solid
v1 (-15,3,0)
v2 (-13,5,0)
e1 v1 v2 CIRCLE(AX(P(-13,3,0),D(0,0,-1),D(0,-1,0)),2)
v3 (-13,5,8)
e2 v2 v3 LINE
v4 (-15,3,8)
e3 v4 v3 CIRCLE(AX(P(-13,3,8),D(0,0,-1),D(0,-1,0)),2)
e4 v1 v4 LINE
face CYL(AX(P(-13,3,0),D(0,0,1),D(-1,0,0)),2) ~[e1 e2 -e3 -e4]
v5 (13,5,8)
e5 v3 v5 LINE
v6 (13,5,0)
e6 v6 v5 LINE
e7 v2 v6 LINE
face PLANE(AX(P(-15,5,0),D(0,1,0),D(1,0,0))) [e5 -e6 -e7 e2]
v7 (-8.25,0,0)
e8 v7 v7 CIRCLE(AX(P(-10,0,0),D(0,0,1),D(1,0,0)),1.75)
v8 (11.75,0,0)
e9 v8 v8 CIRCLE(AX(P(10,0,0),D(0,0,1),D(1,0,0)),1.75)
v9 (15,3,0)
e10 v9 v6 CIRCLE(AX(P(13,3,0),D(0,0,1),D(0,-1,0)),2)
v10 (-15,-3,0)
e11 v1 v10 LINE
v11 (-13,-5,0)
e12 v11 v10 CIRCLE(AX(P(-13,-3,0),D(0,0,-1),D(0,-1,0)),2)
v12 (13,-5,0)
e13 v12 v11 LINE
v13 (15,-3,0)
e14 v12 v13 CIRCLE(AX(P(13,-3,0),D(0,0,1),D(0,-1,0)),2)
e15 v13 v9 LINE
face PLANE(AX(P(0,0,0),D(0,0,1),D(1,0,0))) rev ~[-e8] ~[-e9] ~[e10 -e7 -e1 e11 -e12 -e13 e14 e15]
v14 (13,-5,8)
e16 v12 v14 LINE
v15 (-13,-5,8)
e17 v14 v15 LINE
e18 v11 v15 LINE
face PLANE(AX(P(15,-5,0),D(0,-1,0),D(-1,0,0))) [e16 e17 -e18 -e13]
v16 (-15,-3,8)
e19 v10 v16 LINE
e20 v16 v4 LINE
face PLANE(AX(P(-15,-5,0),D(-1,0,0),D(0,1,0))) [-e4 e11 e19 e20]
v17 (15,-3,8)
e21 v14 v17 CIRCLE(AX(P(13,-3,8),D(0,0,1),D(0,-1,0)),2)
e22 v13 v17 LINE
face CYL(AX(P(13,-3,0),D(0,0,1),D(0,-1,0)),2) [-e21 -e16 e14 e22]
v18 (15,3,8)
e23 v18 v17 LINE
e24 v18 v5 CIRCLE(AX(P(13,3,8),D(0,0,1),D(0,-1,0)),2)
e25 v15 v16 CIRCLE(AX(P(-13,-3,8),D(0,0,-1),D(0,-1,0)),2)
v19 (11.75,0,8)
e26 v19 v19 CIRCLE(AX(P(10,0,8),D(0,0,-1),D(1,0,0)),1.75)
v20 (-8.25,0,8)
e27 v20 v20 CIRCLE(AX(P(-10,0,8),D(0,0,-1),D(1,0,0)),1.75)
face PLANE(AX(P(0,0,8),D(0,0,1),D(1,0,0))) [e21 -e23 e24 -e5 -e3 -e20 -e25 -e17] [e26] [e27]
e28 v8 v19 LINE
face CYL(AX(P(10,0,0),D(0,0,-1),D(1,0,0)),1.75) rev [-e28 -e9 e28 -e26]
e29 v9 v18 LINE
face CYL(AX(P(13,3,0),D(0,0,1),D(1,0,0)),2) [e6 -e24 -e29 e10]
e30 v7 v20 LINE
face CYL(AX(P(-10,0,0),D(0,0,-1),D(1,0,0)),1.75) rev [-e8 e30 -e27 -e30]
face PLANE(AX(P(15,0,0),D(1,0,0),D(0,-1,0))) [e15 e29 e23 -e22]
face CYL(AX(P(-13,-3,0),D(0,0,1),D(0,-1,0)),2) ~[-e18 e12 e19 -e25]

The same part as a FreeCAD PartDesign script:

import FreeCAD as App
import Part
import Sketcher
Q = App.Units.Quantity


def edges_at(feature, points):
    """Names of the edges that pass closest to the given points."""
    edges = feature.Shape.Edges
    near = lambda p: min(range(len(edges)), key=lambda i: edges[i].distToShape(Part.Vertex(*p))[0])
    return sorted({f"Edge{near(p) + 1}" for p in points})

doc = App.newDocument("Part")
body = doc.addObject("PartDesign::Body", "Body")

# Sketch on XY plane
sketch1 = body.newObject("Sketcher::SketchObject", "Sketch")
sketch1.AttachmentSupport = (doc.getObject("XY_Plane"), [""])
sketch1.MapMode = "FlatFace"
sketch1.addGeometry([
    Part.LineSegment(App.Vector(-15, -5, 0), App.Vector(15, -5, 0)),  # 0
    Part.LineSegment(App.Vector(15, -5, 0), App.Vector(15, 5, 0)),  # 1
    Part.LineSegment(App.Vector(15, 5, 0), App.Vector(-15, 5, 0)),  # 2
    Part.LineSegment(App.Vector(-15, 5, 0), App.Vector(-15, -5, 0)),  # 3
    Part.Circle(App.Vector(-10, 0, 0), App.Vector(0, 0, 1), 1.75),  # 4
    Part.Circle(App.Vector(10, 0, 0), App.Vector(0, 0, 1), 1.75),  # 5
], False)
sketch1.addConstraint([
    Sketcher.Constraint("Coincident", 0, 2, 1, 1),
    Sketcher.Constraint("Coincident", 1, 2, 2, 1),
    Sketcher.Constraint("Coincident", 2, 2, 3, 1),
    Sketcher.Constraint("Coincident", 3, 2, 0, 1),
    Sketcher.Constraint("Horizontal", 0),
    Sketcher.Constraint("Vertical", 1),
    Sketcher.Constraint("Horizontal", 2),
    Sketcher.Constraint("Vertical", 3),
    Sketcher.Constraint("Equal", 4, 5),
    Sketcher.Constraint("Symmetric", 4, 3, 5, 3, -1, 1),
    Sketcher.Constraint("Symmetric", 0, 2, 2, 2, -1, 1),
    Sketcher.Constraint("PointOnObject", 4, 3, -1),
    Sketcher.Constraint("Diameter", 4, Q("3.5 mm")),
    Sketcher.Constraint("DistanceX", 0, 1, 0, 2, Q("30 mm")),
    Sketcher.Constraint("DistanceY", 1, 1, 1, 2, Q("10 mm")),
    Sketcher.Constraint("DistanceX", 4, 3, -1, 1, Q("10 mm")),
])
pad1 = body.newObject("PartDesign::Pad", "Pad")
pad1.Profile = sketch1
pad1.Length = 8
doc.recompute()

fillet = body.newObject("PartDesign::Fillet", "Fillet")
fillet.Base = (pad1, edges_at(pad1, [
    (-15, 5, 4),
    (15, 5, 4),
    (15, -5, 4),
    (-15, -5, 4),
]))
fillet.Radius = 2

doc.recompute()
